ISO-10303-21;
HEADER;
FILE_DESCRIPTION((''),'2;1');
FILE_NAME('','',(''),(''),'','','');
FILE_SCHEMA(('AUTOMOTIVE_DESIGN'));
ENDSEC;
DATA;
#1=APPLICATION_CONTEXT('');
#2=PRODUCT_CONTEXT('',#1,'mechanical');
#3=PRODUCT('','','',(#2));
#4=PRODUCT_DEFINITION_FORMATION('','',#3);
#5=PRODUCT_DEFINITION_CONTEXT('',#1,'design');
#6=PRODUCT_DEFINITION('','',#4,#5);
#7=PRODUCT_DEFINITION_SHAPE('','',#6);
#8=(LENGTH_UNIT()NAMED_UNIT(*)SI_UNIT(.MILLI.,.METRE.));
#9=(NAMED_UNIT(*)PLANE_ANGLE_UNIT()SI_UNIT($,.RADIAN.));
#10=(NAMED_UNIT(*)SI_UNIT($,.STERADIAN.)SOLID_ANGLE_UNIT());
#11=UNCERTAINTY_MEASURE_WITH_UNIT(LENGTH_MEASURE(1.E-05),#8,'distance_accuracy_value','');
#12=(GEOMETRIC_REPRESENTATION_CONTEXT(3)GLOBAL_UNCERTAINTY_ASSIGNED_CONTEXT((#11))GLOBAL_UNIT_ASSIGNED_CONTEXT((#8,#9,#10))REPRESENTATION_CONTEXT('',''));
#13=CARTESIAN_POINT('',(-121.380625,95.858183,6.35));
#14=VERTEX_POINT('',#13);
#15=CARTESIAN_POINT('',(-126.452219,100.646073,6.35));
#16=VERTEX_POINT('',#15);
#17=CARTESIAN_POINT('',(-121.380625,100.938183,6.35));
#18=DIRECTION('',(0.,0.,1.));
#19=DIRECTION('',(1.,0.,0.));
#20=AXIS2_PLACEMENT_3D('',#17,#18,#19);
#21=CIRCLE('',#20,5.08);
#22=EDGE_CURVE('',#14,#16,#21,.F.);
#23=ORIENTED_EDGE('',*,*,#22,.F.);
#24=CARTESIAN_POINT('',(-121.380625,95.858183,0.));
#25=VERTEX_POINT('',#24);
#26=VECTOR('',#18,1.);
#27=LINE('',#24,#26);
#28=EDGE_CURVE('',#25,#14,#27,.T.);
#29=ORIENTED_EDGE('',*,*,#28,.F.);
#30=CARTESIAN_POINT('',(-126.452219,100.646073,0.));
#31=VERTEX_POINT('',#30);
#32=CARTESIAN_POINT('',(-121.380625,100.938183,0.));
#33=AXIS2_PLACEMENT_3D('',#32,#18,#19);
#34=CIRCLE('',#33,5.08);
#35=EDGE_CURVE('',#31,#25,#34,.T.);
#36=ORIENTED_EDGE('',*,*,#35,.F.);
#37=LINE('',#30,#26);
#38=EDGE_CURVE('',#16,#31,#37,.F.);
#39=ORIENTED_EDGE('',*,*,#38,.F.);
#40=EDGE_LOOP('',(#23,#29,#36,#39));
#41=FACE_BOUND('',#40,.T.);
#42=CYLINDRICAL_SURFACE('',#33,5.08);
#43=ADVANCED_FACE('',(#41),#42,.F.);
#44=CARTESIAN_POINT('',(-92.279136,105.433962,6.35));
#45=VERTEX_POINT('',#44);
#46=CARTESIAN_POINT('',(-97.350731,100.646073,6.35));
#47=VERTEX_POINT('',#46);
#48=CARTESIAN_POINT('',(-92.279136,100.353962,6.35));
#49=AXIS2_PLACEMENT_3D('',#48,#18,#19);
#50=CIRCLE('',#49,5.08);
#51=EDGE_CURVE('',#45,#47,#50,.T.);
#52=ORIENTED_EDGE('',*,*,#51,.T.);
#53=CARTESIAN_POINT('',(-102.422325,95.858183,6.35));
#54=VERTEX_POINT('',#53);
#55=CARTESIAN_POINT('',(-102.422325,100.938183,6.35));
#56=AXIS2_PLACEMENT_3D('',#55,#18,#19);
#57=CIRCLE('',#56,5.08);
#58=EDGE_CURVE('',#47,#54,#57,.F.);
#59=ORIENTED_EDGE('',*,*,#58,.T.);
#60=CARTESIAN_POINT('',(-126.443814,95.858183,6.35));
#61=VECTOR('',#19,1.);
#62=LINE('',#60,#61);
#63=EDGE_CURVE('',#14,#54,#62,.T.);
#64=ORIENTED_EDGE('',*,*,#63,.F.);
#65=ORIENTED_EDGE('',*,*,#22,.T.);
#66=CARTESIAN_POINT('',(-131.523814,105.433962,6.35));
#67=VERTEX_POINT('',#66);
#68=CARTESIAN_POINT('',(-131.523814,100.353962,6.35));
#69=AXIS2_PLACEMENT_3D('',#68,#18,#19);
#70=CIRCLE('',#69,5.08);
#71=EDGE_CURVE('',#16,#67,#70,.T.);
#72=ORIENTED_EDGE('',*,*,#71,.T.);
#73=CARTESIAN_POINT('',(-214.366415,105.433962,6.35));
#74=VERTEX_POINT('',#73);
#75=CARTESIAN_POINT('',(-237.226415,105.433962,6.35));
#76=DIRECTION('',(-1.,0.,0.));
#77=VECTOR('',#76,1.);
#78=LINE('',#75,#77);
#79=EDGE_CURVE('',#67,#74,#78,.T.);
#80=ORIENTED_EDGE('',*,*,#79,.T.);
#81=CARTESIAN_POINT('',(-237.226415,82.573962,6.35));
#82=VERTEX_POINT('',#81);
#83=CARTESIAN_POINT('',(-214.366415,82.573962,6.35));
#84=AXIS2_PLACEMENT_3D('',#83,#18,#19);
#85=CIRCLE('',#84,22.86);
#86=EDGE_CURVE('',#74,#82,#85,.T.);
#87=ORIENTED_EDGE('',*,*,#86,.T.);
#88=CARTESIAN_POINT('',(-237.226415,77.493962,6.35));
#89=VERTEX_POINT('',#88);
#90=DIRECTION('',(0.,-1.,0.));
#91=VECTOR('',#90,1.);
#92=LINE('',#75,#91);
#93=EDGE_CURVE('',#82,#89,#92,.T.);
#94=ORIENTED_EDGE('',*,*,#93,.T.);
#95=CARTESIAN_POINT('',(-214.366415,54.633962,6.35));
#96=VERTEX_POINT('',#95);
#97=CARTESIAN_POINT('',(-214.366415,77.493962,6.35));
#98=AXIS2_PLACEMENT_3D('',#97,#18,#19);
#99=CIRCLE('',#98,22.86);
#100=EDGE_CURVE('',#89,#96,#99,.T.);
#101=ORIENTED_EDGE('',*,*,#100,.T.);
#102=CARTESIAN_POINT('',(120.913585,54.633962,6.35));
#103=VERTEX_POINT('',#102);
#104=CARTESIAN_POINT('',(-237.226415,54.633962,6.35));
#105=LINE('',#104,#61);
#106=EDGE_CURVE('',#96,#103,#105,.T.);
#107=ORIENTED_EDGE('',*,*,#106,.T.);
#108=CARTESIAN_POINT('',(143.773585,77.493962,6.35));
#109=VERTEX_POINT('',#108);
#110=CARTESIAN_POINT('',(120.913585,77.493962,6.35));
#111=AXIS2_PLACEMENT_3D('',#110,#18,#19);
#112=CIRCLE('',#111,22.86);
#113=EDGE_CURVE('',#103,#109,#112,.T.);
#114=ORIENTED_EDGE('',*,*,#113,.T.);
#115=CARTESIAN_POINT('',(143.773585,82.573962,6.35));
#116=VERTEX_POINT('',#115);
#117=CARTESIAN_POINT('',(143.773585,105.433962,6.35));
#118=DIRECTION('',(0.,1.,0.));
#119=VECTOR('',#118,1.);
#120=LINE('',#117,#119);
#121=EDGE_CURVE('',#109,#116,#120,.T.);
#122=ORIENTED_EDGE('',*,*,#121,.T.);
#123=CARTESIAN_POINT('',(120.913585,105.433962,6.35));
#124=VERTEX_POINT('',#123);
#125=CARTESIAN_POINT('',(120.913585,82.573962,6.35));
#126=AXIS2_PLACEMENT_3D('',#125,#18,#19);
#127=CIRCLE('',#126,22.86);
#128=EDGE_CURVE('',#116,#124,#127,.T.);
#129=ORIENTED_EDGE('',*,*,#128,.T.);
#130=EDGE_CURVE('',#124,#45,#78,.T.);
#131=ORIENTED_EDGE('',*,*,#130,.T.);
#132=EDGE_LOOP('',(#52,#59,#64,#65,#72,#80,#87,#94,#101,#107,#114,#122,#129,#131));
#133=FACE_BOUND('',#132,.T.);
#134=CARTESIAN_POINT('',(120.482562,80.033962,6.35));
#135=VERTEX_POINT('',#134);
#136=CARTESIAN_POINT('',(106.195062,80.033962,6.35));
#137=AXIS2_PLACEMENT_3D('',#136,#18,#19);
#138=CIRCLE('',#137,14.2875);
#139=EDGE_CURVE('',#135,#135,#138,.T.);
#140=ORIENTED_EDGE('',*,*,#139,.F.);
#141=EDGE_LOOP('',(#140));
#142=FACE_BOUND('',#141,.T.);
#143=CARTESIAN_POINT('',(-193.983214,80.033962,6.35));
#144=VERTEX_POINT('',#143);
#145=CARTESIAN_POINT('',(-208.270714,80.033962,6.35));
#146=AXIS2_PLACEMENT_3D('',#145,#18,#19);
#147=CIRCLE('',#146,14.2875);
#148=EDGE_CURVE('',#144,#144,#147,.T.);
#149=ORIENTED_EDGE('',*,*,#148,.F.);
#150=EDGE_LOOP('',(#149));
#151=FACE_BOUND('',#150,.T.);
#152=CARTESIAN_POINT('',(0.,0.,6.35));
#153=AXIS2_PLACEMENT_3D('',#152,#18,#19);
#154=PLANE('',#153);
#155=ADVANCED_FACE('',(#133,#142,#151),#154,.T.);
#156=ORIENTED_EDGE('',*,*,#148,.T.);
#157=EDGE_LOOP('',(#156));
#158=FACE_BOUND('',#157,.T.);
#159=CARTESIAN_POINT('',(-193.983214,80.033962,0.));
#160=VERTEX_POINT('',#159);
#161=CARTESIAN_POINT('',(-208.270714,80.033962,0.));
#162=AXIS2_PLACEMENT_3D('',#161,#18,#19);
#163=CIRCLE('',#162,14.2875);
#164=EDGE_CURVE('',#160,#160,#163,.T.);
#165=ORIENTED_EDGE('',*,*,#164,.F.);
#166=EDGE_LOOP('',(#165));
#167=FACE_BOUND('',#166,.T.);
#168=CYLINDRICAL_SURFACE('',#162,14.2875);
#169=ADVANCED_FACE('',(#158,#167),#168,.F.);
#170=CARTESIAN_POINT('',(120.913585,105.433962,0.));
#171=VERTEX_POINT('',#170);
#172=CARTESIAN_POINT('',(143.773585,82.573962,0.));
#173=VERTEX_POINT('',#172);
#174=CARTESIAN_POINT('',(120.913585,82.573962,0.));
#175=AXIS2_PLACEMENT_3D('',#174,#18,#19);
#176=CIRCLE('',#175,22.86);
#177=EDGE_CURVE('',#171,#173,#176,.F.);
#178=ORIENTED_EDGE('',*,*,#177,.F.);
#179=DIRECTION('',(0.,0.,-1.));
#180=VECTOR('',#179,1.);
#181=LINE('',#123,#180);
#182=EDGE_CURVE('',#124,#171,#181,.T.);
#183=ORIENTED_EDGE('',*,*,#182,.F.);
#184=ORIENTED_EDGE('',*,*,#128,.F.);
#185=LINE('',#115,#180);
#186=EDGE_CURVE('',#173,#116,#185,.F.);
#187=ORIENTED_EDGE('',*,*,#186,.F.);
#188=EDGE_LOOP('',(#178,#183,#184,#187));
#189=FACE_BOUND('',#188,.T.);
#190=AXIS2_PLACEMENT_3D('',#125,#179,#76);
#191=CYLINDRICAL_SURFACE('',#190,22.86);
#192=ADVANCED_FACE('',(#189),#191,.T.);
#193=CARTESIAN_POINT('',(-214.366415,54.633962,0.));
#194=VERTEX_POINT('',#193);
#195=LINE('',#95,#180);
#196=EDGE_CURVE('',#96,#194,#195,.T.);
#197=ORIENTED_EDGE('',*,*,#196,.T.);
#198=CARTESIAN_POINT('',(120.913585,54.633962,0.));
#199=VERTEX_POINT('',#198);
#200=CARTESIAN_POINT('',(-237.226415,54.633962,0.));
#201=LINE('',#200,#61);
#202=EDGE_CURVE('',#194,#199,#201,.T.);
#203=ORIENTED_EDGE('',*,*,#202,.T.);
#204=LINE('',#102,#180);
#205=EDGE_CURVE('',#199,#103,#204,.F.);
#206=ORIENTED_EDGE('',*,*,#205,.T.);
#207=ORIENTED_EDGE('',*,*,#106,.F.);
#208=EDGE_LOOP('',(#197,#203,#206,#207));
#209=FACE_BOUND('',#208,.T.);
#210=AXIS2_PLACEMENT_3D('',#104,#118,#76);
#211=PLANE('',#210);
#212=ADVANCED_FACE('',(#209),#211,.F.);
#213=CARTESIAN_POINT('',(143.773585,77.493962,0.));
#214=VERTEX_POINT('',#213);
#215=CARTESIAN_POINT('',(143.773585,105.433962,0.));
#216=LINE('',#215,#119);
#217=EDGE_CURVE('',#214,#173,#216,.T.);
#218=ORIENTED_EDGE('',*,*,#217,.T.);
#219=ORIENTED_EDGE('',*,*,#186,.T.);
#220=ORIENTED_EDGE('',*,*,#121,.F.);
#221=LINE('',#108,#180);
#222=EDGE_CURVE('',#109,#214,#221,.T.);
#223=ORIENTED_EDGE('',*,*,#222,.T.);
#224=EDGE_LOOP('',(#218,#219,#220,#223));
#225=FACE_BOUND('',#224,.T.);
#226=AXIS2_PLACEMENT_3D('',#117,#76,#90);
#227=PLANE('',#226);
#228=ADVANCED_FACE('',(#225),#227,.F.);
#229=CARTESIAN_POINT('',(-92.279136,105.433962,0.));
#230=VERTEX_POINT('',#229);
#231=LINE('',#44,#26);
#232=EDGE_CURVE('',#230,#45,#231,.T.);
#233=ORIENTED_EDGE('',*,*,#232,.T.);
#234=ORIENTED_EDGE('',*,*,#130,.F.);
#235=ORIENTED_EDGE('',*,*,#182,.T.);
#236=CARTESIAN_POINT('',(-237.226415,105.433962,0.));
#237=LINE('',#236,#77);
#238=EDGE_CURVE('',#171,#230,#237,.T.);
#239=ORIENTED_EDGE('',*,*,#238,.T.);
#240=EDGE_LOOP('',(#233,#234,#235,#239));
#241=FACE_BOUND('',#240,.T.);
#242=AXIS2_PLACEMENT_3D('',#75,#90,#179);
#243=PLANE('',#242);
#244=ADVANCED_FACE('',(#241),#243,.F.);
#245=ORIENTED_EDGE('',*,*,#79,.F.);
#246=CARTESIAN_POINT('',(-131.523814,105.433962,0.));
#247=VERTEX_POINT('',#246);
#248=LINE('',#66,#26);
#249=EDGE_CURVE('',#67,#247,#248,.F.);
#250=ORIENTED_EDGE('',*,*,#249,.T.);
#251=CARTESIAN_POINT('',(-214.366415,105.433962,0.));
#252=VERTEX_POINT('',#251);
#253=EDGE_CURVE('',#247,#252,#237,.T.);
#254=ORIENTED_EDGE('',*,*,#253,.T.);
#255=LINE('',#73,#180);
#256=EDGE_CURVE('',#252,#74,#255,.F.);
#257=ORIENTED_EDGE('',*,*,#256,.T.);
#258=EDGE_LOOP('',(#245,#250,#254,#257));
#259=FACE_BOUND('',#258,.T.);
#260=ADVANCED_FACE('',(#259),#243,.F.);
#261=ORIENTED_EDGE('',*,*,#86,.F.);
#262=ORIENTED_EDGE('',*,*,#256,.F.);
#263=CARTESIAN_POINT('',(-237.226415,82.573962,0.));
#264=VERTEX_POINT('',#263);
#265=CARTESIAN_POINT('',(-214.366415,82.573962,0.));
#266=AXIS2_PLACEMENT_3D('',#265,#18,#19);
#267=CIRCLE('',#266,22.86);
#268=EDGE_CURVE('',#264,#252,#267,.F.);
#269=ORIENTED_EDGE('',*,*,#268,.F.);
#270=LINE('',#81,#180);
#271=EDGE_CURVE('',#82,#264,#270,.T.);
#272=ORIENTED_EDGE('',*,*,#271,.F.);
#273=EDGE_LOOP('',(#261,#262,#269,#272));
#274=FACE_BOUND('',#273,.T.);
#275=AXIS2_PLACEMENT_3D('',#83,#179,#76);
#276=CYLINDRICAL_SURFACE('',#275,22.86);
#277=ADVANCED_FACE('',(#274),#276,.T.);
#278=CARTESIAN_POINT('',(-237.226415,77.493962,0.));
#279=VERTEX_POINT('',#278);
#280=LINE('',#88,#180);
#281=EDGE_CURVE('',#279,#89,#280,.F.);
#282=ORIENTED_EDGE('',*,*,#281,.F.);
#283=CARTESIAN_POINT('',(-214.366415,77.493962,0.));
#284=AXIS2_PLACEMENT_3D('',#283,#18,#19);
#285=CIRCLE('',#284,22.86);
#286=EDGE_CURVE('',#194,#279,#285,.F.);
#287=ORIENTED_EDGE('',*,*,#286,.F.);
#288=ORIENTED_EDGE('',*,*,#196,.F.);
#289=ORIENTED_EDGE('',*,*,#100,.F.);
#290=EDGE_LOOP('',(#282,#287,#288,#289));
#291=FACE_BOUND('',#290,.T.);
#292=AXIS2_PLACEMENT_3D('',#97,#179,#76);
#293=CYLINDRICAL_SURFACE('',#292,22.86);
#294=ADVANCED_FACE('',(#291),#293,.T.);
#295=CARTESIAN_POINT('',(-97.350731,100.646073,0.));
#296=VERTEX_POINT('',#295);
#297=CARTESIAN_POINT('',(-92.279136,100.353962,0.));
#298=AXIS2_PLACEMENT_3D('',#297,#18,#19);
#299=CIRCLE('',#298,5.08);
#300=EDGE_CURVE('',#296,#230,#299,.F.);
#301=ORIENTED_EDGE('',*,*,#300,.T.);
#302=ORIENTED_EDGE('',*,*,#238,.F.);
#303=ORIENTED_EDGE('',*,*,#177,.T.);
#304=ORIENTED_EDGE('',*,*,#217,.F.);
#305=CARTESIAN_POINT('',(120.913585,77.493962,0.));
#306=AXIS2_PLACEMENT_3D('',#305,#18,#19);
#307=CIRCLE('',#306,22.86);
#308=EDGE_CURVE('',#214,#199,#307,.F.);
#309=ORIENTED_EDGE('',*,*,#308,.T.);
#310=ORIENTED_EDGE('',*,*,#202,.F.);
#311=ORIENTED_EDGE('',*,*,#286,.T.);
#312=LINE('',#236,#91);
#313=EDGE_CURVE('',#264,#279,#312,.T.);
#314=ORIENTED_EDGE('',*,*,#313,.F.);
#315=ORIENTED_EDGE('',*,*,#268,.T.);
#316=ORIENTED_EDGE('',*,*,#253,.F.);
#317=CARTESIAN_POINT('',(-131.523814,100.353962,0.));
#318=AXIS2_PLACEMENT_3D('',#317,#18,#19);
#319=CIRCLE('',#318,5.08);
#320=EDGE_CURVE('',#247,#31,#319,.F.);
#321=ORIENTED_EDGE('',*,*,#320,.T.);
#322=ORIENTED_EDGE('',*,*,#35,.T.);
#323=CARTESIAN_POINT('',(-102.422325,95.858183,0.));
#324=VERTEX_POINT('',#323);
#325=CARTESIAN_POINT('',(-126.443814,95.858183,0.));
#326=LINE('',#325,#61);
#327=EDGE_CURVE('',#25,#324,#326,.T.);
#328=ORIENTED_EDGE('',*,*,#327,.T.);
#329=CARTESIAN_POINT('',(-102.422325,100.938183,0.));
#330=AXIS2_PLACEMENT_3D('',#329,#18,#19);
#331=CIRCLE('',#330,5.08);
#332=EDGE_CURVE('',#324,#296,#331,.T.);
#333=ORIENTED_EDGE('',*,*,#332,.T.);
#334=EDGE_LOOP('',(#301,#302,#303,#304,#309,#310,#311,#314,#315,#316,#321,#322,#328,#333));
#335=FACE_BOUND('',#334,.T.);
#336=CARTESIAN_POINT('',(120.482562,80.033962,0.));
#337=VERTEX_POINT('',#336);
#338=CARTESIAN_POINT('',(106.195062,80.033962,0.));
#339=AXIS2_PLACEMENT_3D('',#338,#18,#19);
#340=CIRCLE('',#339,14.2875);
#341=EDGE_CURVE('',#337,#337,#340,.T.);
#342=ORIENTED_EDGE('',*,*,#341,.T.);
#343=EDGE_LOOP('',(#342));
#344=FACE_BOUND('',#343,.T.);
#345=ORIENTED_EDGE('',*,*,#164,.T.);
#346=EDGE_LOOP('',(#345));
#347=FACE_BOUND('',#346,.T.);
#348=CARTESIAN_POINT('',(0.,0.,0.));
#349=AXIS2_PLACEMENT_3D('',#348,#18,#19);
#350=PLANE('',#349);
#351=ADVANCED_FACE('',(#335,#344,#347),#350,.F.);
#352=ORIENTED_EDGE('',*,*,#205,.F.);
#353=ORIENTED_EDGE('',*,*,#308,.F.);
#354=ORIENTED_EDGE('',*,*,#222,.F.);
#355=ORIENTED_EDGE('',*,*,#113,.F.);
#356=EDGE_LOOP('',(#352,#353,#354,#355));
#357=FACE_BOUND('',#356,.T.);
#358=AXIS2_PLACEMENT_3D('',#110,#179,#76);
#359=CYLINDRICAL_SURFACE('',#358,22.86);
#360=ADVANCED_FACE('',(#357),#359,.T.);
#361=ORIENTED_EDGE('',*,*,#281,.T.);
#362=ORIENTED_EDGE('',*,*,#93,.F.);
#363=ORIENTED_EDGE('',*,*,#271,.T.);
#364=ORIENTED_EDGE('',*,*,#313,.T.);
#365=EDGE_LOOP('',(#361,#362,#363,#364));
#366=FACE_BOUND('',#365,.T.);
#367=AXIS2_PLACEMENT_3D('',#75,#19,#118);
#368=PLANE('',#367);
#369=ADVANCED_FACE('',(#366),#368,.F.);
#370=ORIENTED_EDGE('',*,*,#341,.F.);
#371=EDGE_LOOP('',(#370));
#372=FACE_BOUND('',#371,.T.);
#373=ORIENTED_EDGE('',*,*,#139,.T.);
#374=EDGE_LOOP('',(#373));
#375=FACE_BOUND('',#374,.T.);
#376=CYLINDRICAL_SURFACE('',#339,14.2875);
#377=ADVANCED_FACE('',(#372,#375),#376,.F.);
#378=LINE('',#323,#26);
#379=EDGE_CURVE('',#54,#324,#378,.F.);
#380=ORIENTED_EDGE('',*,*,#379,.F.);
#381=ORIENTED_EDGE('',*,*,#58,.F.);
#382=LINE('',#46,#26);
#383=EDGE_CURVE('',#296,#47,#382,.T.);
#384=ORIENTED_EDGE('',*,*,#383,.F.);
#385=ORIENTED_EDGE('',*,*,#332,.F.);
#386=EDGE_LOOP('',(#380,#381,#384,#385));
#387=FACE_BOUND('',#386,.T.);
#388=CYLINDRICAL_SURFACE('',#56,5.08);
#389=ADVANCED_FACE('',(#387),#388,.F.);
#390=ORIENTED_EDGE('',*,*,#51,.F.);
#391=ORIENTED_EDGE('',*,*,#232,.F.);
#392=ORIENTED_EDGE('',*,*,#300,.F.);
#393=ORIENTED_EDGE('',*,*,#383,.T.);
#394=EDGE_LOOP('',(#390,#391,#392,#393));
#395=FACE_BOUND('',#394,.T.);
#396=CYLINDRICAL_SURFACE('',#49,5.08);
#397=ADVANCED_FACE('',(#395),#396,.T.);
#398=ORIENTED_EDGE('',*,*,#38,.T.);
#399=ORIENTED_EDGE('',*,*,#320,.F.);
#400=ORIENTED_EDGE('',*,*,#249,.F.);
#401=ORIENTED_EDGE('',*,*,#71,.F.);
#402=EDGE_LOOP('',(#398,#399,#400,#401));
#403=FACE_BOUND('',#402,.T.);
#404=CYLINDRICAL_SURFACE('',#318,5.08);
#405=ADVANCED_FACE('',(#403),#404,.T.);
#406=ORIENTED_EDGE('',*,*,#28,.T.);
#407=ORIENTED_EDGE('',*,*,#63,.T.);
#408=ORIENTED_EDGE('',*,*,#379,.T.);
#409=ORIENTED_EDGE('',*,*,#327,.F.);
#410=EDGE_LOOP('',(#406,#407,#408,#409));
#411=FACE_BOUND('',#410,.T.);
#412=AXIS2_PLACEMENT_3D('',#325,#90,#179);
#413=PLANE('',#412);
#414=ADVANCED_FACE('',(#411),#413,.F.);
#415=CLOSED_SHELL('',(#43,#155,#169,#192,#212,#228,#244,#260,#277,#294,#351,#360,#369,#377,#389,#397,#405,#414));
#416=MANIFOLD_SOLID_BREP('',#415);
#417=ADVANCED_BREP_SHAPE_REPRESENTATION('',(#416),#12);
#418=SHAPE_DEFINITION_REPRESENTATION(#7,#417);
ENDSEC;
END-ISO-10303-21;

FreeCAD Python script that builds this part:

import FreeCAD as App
import Part
import Sketcher

V = App.Vector
Q = App.Units.Quantity


def edges_at(feature, points):
    """Names of the edges that pass closest to the given points."""
    edges = feature.Shape.Edges
    near = lambda p: min(range(len(edges)), key=lambda i: edges[i].distToShape(Part.Vertex(*p))[0])
    return sorted({f"Edge{near(p) + 1}" for p in points})


def add_polygon(sketch, points):
    """Adds a closed chain of lines whose ends are joined by coincident constraints."""
    first, n = sketch.GeometryCount, len(points)
    for a, b in zip(points, points[1:] + points[:1]):
        sketch.addGeometry(Part.LineSegment(App.Vector(*a, 0), App.Vector(*b, 0)), False)
    for i in range(n):
        sketch.addConstraint(Sketcher.Constraint("Coincident", first + i, 2, first + (i + 1) % n, 1))

doc = App.newDocument("Part")
body = doc.addObject("PartDesign::Body", "Body")

# Sketch on XY plane
sketch1 = body.newObject("Sketcher::SketchObject", "Sketch")
sketch1.AttachmentSupport = (doc.getObject("XY_Plane"), [""])
sketch1.MapMode = "FlatFace"
add_polygon(sketch1, [(-237, 105), (-237, 55), (144, 55), (144, 105)])  # lines 0-3
sketch1.addConstraint(Sketcher.Constraint("Vertical", 0))
sketch1.addConstraint(Sketcher.Constraint("Horizontal", 1))
sketch1.addConstraint(Sketcher.Constraint("Vertical", 2))
sketch1.addConstraint(Sketcher.Constraint("Horizontal", 3))
sketch1.addConstraint(Sketcher.Constraint("DistanceX", 1, 1, 1, 2, Q("15 in")))
sketch1.addConstraint(Sketcher.Constraint("DistanceY", 0, 2, 0, 1, Q("2 in")))
sketch1.addConstraint(Sketcher.Constraint("DistanceX", 0, 2, -1, 1, 237.226415))
sketch1.addConstraint(Sketcher.Constraint("DistanceY", -1, 1, 0, 2, 54.633962))
pad1 = body.newObject("PartDesign::Pad", "Pad")
pad1.Profile = sketch1
pad1.Length = Q("0.25 in")

# Sketch on XY plane
sketch2 = body.newObject("Sketcher::SketchObject", "Sketch001")
sketch2.AttachmentSupport = (doc.getObject("XY_Plane"), [""])
sketch2.MapMode = "FlatFace"
sketch2.AttachmentOffset = App.Placement(V(0, 0, 0.25 * 25.4), App.Rotation())
sketch2.addGeometry(Part.Circle(V(-208, 80, 0), V(0, 0, 1), 14), False)  # 0
sketch2.addGeometry(Part.Circle(V(106, 80, 0), V(0, 0, 1), 14), False)  # 1
add_polygon(sketch2, [(-126, 105), (-126, 96), (-97, 96), (-97, 105)])  # lines 2-5
sketch2.addConstraint(Sketcher.Constraint("Vertical", 2))
sketch2.addConstraint(Sketcher.Constraint("Horizontal", 3))
sketch2.addConstraint(Sketcher.Constraint("Vertical", 4))
sketch2.addConstraint(Sketcher.Constraint("Horizontal", 5))
sketch2.addConstraint(Sketcher.Constraint("Equal", 0, 1))
sketch2.addConstraint(Sketcher.Constraint("Horizontal", 0, 3, 1, 3))
sketch2.addConstraint(Sketcher.Constraint("Diameter", 0, Q("1.125 in")))
sketch2.addConstraint(Sketcher.Constraint("DistanceY", 0, 3, 4, 2, Q("1 in")))
sketch2.addConstraint(Sketcher.Constraint("DistanceY", 2, 2, 2, 1, 9.575779))
sketch2.addConstraint(Sketcher.Constraint("DistanceX", 0, 3, 2, 2, 81.8269))
sketch2.addConstraint(Sketcher.Constraint("DistanceX", 3, 2, 1, 3, 203.554198))
sketch2.addConstraint(Sketcher.Constraint("DistanceX", 3, 1, 3, 2, 29.084678))
sketch2.addConstraint(Sketcher.Constraint("DistanceX", -1, 1, 1, 3, 106.195062))
sketch2.addConstraint(Sketcher.Constraint("DistanceY", -1, 1, 0, 3, 80.033962))
pocket1 = body.newObject("PartDesign::Pocket", "Pocket")
pocket1.Profile = sketch2
pocket1.Length = Q("0.25 in")
doc.recompute()

fillet = body.newObject("PartDesign::Fillet", "Fillet")
fillet.Base = (pocket1, edges_at(pocket1, [(143.774, 105.434, 3.175)]))
fillet.Radius = Q("0.9 in")
doc.recompute()

fillet2 = body.newObject("PartDesign::Fillet", "Fillet001")
fillet2.Base = (fillet, edges_at(fillet, [(143.774, 54.634, 3.175)]))
fillet2.Radius = Q("0.9 in")
doc.recompute()

fillet3 = body.newObject("PartDesign::Fillet", "Fillet002")
fillet3.Base = (fillet2, edges_at(fillet2, [(-237.226, 54.634, 3.175)]))
fillet3.Radius = Q("0.9 in")
doc.recompute()

fillet4 = body.newObject("PartDesign::Fillet", "Fillet003")
fillet4.Base = (fillet3, edges_at(fillet3, [(-237.226, 105.434, 3.175)]))
fillet4.Radius = Q("0.9 in")
doc.recompute()

fillet5 = body.newObject("PartDesign::Fillet", "Fillet004")
fillet5.Base = (fillet4, edges_at(fillet4, [(-126.444, 105.434, 3.175)]))
fillet5.Radius = Q("0.2 in")
doc.recompute()

fillet6 = body.newObject("PartDesign::Fillet", "Fillet005")
fillet6.Base = (fillet5, edges_at(fillet5, [(-97.359, 105.434, 3.175)]))
fillet6.Radius = Q("0.2 in")
doc.recompute()

fillet7 = body.newObject("PartDesign::Fillet", "Fillet006")
fillet7.Base = (fillet6, edges_at(fillet6, [(-126.444, 95.858, 3.175)]))
fillet7.Radius = Q("0.2 in")
doc.recompute()

fillet8 = body.newObject("PartDesign::Fillet", "Fillet007")
fillet8.Base = (fillet7, edges_at(fillet7, [(-97.359, 95.858, 3.175)]))
fillet8.Radius = Q("0.2 in")

doc.recompute()
